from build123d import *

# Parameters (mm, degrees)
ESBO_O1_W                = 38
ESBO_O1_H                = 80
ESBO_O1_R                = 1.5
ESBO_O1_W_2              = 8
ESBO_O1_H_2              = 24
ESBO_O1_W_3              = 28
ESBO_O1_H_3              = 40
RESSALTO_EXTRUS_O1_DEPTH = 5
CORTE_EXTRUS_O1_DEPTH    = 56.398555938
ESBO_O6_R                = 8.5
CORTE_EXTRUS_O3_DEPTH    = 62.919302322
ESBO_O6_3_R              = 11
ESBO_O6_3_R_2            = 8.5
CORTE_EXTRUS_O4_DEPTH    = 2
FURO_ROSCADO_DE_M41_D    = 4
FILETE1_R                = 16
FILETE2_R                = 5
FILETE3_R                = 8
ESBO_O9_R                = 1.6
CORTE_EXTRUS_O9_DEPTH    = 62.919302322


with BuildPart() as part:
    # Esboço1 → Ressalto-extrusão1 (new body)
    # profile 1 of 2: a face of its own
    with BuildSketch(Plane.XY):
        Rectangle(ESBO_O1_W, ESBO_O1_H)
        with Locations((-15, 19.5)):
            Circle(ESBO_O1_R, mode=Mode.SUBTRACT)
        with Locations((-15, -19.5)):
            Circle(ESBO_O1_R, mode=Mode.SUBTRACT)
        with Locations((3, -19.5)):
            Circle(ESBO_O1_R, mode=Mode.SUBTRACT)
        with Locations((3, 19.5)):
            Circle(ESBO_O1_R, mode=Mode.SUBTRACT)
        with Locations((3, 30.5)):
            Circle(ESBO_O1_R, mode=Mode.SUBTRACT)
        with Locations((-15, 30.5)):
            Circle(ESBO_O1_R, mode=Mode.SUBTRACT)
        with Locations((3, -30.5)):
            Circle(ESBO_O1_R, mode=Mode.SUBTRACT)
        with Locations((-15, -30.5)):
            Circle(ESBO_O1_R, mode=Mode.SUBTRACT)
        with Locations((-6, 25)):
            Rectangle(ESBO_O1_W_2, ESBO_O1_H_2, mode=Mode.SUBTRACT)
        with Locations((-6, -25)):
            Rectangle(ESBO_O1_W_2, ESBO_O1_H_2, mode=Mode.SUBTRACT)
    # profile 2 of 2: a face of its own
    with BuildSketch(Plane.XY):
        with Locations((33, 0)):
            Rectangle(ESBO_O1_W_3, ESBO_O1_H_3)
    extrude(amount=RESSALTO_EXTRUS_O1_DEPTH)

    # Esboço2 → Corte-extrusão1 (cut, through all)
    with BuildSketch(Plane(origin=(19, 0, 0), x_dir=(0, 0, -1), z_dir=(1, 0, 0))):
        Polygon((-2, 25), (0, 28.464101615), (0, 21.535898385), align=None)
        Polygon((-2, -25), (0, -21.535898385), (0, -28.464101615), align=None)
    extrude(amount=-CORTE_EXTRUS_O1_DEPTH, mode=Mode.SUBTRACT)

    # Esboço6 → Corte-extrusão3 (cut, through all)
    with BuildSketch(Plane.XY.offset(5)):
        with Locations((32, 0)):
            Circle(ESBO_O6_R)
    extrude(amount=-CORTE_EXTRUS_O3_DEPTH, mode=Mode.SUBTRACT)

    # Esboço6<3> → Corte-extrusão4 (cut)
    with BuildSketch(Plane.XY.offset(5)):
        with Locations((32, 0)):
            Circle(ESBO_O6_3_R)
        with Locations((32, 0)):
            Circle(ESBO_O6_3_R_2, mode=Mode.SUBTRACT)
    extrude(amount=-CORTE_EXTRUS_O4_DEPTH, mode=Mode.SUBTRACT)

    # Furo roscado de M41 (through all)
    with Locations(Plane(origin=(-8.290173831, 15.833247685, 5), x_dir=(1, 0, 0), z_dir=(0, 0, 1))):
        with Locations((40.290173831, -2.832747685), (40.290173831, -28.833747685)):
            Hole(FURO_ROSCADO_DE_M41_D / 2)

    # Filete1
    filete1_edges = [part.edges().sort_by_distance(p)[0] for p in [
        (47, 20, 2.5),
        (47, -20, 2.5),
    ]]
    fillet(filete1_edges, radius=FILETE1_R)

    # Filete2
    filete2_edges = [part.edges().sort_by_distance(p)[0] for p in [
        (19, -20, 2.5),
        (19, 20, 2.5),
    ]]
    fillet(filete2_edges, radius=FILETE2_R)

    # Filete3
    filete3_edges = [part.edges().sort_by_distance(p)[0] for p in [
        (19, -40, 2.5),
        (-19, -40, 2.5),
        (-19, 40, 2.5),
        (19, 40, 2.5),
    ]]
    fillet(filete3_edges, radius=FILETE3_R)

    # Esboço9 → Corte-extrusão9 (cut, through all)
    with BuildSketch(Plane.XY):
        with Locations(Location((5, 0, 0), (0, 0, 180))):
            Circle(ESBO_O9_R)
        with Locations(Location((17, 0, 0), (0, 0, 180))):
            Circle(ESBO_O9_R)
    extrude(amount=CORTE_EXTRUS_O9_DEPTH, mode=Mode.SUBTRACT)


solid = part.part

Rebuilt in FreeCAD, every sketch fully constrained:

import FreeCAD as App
import Part
import Sketcher

V = App.Vector
Q = App.Units.Quantity


def edges_at(feature, points):
    """Names of the edges that pass closest to the given points."""
    edges = feature.Shape.Edges
    near = lambda p: min(range(len(edges)), key=lambda i: edges[i].distToShape(Part.Vertex(*p))[0])
    return sorted({f"Edge{near(p) + 1}" for p in points})


def add_polygon(sketch, points):
    """Adds a closed chain of lines whose ends are joined by coincident constraints."""
    first, n = sketch.GeometryCount, len(points)
    for a, b in zip(points, points[1:] + points[:1]):
        sketch.addGeometry(Part.LineSegment(App.Vector(*a, 0), App.Vector(*b, 0)), False)
    for i in range(n):
        sketch.addConstraint(Sketcher.Constraint("Coincident", first + i, 2, first + (i + 1) % n, 1))

doc = App.newDocument("Part")
params = doc.addObject("Spreadsheet::Sheet", "Params")
for row, (alias, value) in enumerate([
    ("sketch1_diameter", "3 mm"),
    ("sketch1_width", "38 mm"),
    ("sketch1_width2", "28 mm"),
    ("sketch1_width3", "8 mm"),
    ("sketch1_height", "80 mm"),
    ("pad1_length", "5 mm"),
    ("sketch2_length", "4 mm"),
    ("sketch3_diameter", "17 mm"),
    ("sketch4_diameter", "22 mm"),
    ("sketch4_diameter2", "17 mm"),
    ("pocket3_length", "2 mm"),
    ("sketch5_diameter", "4 mm"),
    ("hole_diameter", "4 mm"),
    ("fillet_radius", "16 mm"),
    ("fillet2_radius", "5 mm"),
    ("fillet3_radius", "8 mm"),
    ("sketch6_diameter", "3.2 mm"),
], start=1):
    params.set(f"A{row}", alias)
    params.set(f"B{row}", "=" + value)
    params.setAlias(f"B{row}", alias)

body = doc.addObject("PartDesign::Body", "Body")

# Sketch on XY plane
sketch1 = doc.addObject("Sketcher::SketchObject", "Sketch")
body.addObject(sketch1)
sketch1.AttachmentSupport = (doc.XY_Plane, [""])
sketch1.MapMode = "FlatFace"
add_polygon(sketch1, [(-19, 40), (-19, -40), (19, -40), (19, -20), (47, -20), (47, 20), (19, 20), (19, 40)])  # lines 0-7
sketch1.addGeometry(Part.Circle(V(-15, -30.5, 0), V(0, 0, 1), 1.5), False)  # 8
sketch1.addGeometry(Part.Circle(V(-15, -19.5, 0), V(0, 0, 1), 1.5), False)  # 9
add_polygon(sketch1, [(-2, -37), (-10, -37), (-10, -13), (-2, -13)])  # lines 10-13
sketch1.addGeometry(Part.Circle(V(3, -30.5, 0), V(0, 0, 1), 1.5), False)  # 14
sketch1.addGeometry(Part.Circle(V(3, -19.5, 0), V(0, 0, 1), 1.5), False)  # 15
sketch1.addGeometry(Part.Circle(V(-15, 19.5, 0), V(0, 0, 1), 1.5), False)  # 16
sketch1.addGeometry(Part.Circle(V(-15, 30.5, 0), V(0, 0, 1), 1.5), False)  # 17
add_polygon(sketch1, [(-2, 13), (-10, 13), (-10, 37), (-2, 37)])  # lines 18-21
sketch1.addGeometry(Part.Circle(V(3, 19.5, 0), V(0, 0, 1), 1.5), False)  # 22
sketch1.addGeometry(Part.Circle(V(3, 30.5, 0), V(0, 0, 1), 1.5), False)  # 23
sketch1.addConstraint(Sketcher.Constraint("Vertical", 0))
sketch1.addConstraint(Sketcher.Constraint("Horizontal", 1))
sketch1.addConstraint(Sketcher.Constraint("Vertical", 2))
sketch1.addConstraint(Sketcher.Constraint("Horizontal", 3))
sketch1.addConstraint(Sketcher.Constraint("Vertical", 4))
sketch1.addConstraint(Sketcher.Constraint("Horizontal", 5))
sketch1.addConstraint(Sketcher.Constraint("Vertical", 6))
sketch1.addConstraint(Sketcher.Constraint("Horizontal", 7))
sketch1.addConstraint(Sketcher.Constraint("Horizontal", 10))
sketch1.addConstraint(Sketcher.Constraint("Vertical", 11))
sketch1.addConstraint(Sketcher.Constraint("Horizontal", 12))
sketch1.addConstraint(Sketcher.Constraint("Vertical", 13))
sketch1.addConstraint(Sketcher.Constraint("Horizontal", 18))
sketch1.addConstraint(Sketcher.Constraint("Vertical", 19))
sketch1.addConstraint(Sketcher.Constraint("Horizontal", 20))
sketch1.addConstraint(Sketcher.Constraint("Vertical", 21))
sketch1.addConstraint(Sketcher.Constraint("Equal", 8, 9))
sketch1.addConstraint(Sketcher.Constraint("Equal", 9, 14))
sketch1.addConstraint(Sketcher.Constraint("Equal", 14, 15))
sketch1.addConstraint(Sketcher.Constraint("Equal", 15, 16))
sketch1.addConstraint(Sketcher.Constraint("Equal", 16, 17))
sketch1.addConstraint(Sketcher.Constraint("Equal", 17, 22))
sketch1.addConstraint(Sketcher.Constraint("Equal", 22, 23))
sketch1.addConstraint(Sketcher.Constraint("Symmetric", 0, 2, 6, 2, -1, 1))
sketch1.addConstraint(Sketcher.Constraint("Symmetric", 9, 3, 16, 3, -1))
sketch1.addConstraint(Sketcher.Constraint("Symmetric", 8, 3, 17, 3, -1))
sketch1.addConstraint(Sketcher.Constraint("Symmetric", 15, 3, 22, 3, -1))
sketch1.addConstraint(Sketcher.Constraint("Symmetric", 14, 3, 23, 3, -1))
sketch1.addConstraint(Sketcher.Constraint("Symmetric", 2, 2, 5, 2, -1))
sketch1.addConstraint(Sketcher.Constraint("Symmetric", 11, 2, 18, 2, -1))
sketch1.addConstraint(Sketcher.Constraint("Symmetric", 13, 2, 20, 2, -1))
sketch1.addConstraint(Sketcher.Constraint("Horizontal", 8, 3, 14, 3))
sketch1.addConstraint(Sketcher.Constraint("Horizontal", 9, 3, 15, 3))
sketch1.addConstraint(Sketcher.Constraint("Vertical", 8, 3, 9, 3))
sketch1.addConstraint(Sketcher.Constraint("Vertical", 14, 3, 15, 3))
sketch1.addConstraint(Sketcher.Constraint("Diameter", 8, Q("3 mm")))
sketch1.addConstraint(Sketcher.Constraint("DistanceX", 1, 1, 1, 2, Q("38 mm")))
sketch1.addConstraint(Sketcher.Constraint("DistanceX", 3, 1, 3, 2, Q("28 mm")))
sketch1.addConstraint(Sketcher.Constraint("DistanceX", 10, 2, 10, 1, Q("8 mm")))
sketch1.addConstraint(Sketcher.Constraint("DistanceY", 0, 2, 0, 1, Q("80 mm")))
sketch1.addConstraint(Sketcher.Constraint("DistanceY", 2, 1, 2, 2, Q("20 mm")))
sketch1.addConstraint(Sketcher.Constraint("DistanceY", 11, 1, 11, 2, Q("24 mm")))
sketch1.addConstraint(Sketcher.Constraint("DistanceX", 8, 3, -1, 1, Q("15 mm")))
sketch1.addConstraint(Sketcher.Constraint("DistanceX", -1, 1, 14, 3, Q("3 mm")))
sketch1.addConstraint(Sketcher.Constraint("DistanceX", 10, 2, -1, 1, Q("10 mm")))
sketch1.addConstraint(Sketcher.Constraint("DistanceY", 10, 2, -1, 1, Q("37 mm")))
sketch1.addConstraint(Sketcher.Constraint("DistanceY", 8, 3, 9, 3, Q("11 mm")))
sketch1.addConstraint(Sketcher.Constraint("DistanceY", 9, 3, 16, 3, Q("39 mm")))
sketch1.setExpression("Constraints[51]", "Params.sketch1_diameter")
sketch1.setExpression("Constraints[52]", "Params.sketch1_width")
sketch1.setExpression("Constraints[53]", "Params.sketch1_width2")
sketch1.setExpression("Constraints[54]", "Params.sketch1_width3")
sketch1.setExpression("Constraints[55]", "Params.sketch1_height")
pad1 = doc.addObject("PartDesign::Pad", "Pad")
body.addObject(pad1)
pad1.Profile = sketch1
pad1.setExpression("Length", "Params.pad1_length")

# Sketch on YZ plane
sketch2 = doc.addObject("Sketcher::SketchObject", "Sketch001")
body.addObject(sketch2)
sketch2.AttachmentSupport = (doc.YZ_Plane, [""])
sketch2.MapMode = "FlatFace"
sketch2.AttachmentOffset = App.Placement(V(0, 0, 19), App.Rotation())
add_polygon(sketch2, [(28.5, 0), (25, 2), (21.5, 0)])  # lines 0-2
add_polygon(sketch2, [(-21.5, 0), (-25, 2), (-28.5, 0)])  # lines 3-5
sketch2.addConstraint(Sketcher.Constraint("Horizontal", 2))
sketch2.addConstraint(Sketcher.Constraint("Horizontal", 5))
sketch2.addConstraint(Sketcher.Constraint("Symmetric", 2, 2, 4, 2, -1, 1))
sketch2.addConstraint(Sketcher.Constraint("Symmetric", 0, 2, 3, 2, -2))
sketch2.addConstraint(Sketcher.Constraint("Symmetric", 1, 2, 5, 2, -2))
sketch2.addConstraint(Sketcher.Constraint("Parallel", 0, 3))
sketch2.addConstraint(Sketcher.Constraint("Angle", 0, Q("150 deg")))
sketch2.addConstraint(Sketcher.Constraint("Distance", 0, Q("4 mm")))
sketch2.addConstraint(Sketcher.Constraint("DistanceX", -1, 1, 0, 2, Q("25 mm")))
sketch2.setExpression("Constraints[13]", "Params.sketch2_length")
pocket1 = doc.addObject("PartDesign::Pocket", "Pocket")
body.addObject(pocket1)
pocket1.Profile = sketch2
pocket1.Type = "ThroughAll"

# Sketch on XY plane
sketch3 = doc.addObject("Sketcher::SketchObject", "Sketch002")
body.addObject(sketch3)
sketch3.AttachmentSupport = (doc.XY_Plane, [""])
sketch3.MapMode = "FlatFace"
sketch3.AttachmentOffset = App.Placement(V(0, 0, 5), App.Rotation())
sketch3.addGeometry(Part.Circle(V(32, 0, 0), V(0, 0, 1), 8), False)
sketch3.addConstraint(Sketcher.Constraint("PointOnObject", 0, 3, -1))
sketch3.addConstraint(Sketcher.Constraint("Diameter", 0, Q("17 mm")))
sketch3.addConstraint(Sketcher.Constraint("DistanceX", -1, 1, 0, 3, Q("32 mm")))
sketch3.setExpression("Constraints[1]", "Params.sketch3_diameter")
pocket2 = doc.addObject("PartDesign::Pocket", "Pocket001")
body.addObject(pocket2)
pocket2.Profile = sketch3
pocket2.Type = "ThroughAll"

# Sketch on XY plane
sketch4 = doc.addObject("Sketcher::SketchObject", "Sketch003")
body.addObject(sketch4)
sketch4.AttachmentSupport = (doc.XY_Plane, [""])
sketch4.MapMode = "FlatFace"
sketch4.AttachmentOffset = App.Placement(V(0, 0, 5), App.Rotation())
sketch4.addGeometry(Part.Circle(V(32, 0, 0), V(0, 0, 1), 11), False)
sketch4.addGeometry(Part.Circle(V(32, 0, 0), V(0, 0, 1), 8), False)
sketch4.addConstraint(Sketcher.Constraint("Coincident", 1, 3, 0, 3))
sketch4.addConstraint(Sketcher.Constraint("PointOnObject", 0, 3, -1))
sketch4.addConstraint(Sketcher.Constraint("Diameter", 0, Q("22 mm")))
sketch4.addConstraint(Sketcher.Constraint("Diameter", 1, Q("17 mm")))
sketch4.addConstraint(Sketcher.Constraint("DistanceX", -1, 1, 0, 3, Q("32 mm")))
sketch4.setExpression("Constraints[2]", "Params.sketch4_diameter")
sketch4.setExpression("Constraints[3]", "Params.sketch4_diameter2")
pocket3 = doc.addObject("PartDesign::Pocket", "Pocket002")
body.addObject(pocket3)
pocket3.Profile = sketch4
pocket3.setExpression("Length", "Params.pocket3_length")

# Sketch on XY plane
sketch5 = doc.addObject("Sketcher::SketchObject", "Sketch004")
body.addObject(sketch5)
sketch5.AttachmentSupport = (doc.XY_Plane, [""])
sketch5.MapMode = "FlatFace"
sketch5.AttachmentOffset = App.Placement(V(0, 0, 5), App.Rotation())
sketch5.addGeometry(Part.Circle(V(32, 13, 0), V(0, 0, 1), 2), False)
sketch5.addGeometry(Part.Circle(V(32, -13, 0), V(0, 0, 1), 2), False)
sketch5.addConstraint(Sketcher.Constraint("Equal", 0, 1))
sketch5.addConstraint(Sketcher.Constraint("Symmetric", 0, 3, 1, 3, -1))
sketch5.addConstraint(Sketcher.Constraint("Diameter", 0, Q("4 mm")))
sketch5.addConstraint(Sketcher.Constraint("DistanceX", -1, 1, 0, 3, Q("32 mm")))
sketch5.addConstraint(Sketcher.Constraint("DistanceY", 1, 3, 0, 3, Q("26.001 mm")))
sketch5.setExpression("Constraints[2]", "Params.sketch5_diameter")
doc.recompute()
hole = doc.addObject("PartDesign::Hole", "Hole")
body.addObject(hole)
hole.Profile = sketch5
hole.ThreadType = "None"
hole.setExpression("Diameter", "Params.hole_diameter")
hole.DepthType = "ThroughAll"
doc.recompute()

fillet = doc.addObject("PartDesign::Fillet", "Fillet")
body.addObject(fillet)
fillet.Base = (hole, edges_at(hole, [(47, 20, 2.5), (47, -20, 2.5)]))
fillet.setExpression("Radius", "Params.fillet_radius")
doc.recompute()

fillet2 = doc.addObject("PartDesign::Fillet", "Fillet001")
body.addObject(fillet2)
fillet2.Base = (fillet, edges_at(fillet, [(19, -20, 2.5), (19, 20, 2.5)]))
fillet2.setExpression("Radius", "Params.fillet2_radius")
doc.recompute()

fillet3 = doc.addObject("PartDesign::Fillet", "Fillet002")
body.addObject(fillet3)
fillet3.Base = (fillet2, edges_at(fillet2, [
    (19, -40, 2.5),
    (-19, -40, 2.5),
    (-19, 40, 2.5),
    (19, 40, 2.5),
]))
fillet3.setExpression("Radius", "Params.fillet3_radius")

# Sketch on XY plane
sketch6 = doc.addObject("Sketcher::SketchObject", "Sketch005")
body.addObject(sketch6)
sketch6.AttachmentSupport = (doc.XY_Plane, [""])
sketch6.MapMode = "FlatFace"
sketch6.addGeometry(Part.Circle(V(5, 0, 0), V(0, 0, 1), 1.6), False)
sketch6.addGeometry(Part.Circle(V(17, 0, 0), V(0, 0, 1), 1.6), False)
sketch6.addConstraint(Sketcher.Constraint("Equal", 0, 1))
sketch6.addConstraint(Sketcher.Constraint("PointOnObject", 0, 3, -1))
sketch6.addConstraint(Sketcher.Constraint("PointOnObject", 1, 3, -1))
sketch6.addConstraint(Sketcher.Constraint("Diameter", 0, Q("3.2 mm")))
sketch6.addConstraint(Sketcher.Constraint("DistanceX", -1, 1, 0, 3, Q("5 mm")))
sketch6.addConstraint(Sketcher.Constraint("DistanceX", -1, 1, 1, 3, Q("17 mm")))
sketch6.setExpression("Constraints[3]", "Params.sketch6_diameter")
pocket4 = doc.addObject("PartDesign::Pocket", "Pocket003")
body.addObject(pocket4)
pocket4.Profile = sketch6
pocket4.Type = "ThroughAll"
pocket4.Reversed = True

doc.recompute()
